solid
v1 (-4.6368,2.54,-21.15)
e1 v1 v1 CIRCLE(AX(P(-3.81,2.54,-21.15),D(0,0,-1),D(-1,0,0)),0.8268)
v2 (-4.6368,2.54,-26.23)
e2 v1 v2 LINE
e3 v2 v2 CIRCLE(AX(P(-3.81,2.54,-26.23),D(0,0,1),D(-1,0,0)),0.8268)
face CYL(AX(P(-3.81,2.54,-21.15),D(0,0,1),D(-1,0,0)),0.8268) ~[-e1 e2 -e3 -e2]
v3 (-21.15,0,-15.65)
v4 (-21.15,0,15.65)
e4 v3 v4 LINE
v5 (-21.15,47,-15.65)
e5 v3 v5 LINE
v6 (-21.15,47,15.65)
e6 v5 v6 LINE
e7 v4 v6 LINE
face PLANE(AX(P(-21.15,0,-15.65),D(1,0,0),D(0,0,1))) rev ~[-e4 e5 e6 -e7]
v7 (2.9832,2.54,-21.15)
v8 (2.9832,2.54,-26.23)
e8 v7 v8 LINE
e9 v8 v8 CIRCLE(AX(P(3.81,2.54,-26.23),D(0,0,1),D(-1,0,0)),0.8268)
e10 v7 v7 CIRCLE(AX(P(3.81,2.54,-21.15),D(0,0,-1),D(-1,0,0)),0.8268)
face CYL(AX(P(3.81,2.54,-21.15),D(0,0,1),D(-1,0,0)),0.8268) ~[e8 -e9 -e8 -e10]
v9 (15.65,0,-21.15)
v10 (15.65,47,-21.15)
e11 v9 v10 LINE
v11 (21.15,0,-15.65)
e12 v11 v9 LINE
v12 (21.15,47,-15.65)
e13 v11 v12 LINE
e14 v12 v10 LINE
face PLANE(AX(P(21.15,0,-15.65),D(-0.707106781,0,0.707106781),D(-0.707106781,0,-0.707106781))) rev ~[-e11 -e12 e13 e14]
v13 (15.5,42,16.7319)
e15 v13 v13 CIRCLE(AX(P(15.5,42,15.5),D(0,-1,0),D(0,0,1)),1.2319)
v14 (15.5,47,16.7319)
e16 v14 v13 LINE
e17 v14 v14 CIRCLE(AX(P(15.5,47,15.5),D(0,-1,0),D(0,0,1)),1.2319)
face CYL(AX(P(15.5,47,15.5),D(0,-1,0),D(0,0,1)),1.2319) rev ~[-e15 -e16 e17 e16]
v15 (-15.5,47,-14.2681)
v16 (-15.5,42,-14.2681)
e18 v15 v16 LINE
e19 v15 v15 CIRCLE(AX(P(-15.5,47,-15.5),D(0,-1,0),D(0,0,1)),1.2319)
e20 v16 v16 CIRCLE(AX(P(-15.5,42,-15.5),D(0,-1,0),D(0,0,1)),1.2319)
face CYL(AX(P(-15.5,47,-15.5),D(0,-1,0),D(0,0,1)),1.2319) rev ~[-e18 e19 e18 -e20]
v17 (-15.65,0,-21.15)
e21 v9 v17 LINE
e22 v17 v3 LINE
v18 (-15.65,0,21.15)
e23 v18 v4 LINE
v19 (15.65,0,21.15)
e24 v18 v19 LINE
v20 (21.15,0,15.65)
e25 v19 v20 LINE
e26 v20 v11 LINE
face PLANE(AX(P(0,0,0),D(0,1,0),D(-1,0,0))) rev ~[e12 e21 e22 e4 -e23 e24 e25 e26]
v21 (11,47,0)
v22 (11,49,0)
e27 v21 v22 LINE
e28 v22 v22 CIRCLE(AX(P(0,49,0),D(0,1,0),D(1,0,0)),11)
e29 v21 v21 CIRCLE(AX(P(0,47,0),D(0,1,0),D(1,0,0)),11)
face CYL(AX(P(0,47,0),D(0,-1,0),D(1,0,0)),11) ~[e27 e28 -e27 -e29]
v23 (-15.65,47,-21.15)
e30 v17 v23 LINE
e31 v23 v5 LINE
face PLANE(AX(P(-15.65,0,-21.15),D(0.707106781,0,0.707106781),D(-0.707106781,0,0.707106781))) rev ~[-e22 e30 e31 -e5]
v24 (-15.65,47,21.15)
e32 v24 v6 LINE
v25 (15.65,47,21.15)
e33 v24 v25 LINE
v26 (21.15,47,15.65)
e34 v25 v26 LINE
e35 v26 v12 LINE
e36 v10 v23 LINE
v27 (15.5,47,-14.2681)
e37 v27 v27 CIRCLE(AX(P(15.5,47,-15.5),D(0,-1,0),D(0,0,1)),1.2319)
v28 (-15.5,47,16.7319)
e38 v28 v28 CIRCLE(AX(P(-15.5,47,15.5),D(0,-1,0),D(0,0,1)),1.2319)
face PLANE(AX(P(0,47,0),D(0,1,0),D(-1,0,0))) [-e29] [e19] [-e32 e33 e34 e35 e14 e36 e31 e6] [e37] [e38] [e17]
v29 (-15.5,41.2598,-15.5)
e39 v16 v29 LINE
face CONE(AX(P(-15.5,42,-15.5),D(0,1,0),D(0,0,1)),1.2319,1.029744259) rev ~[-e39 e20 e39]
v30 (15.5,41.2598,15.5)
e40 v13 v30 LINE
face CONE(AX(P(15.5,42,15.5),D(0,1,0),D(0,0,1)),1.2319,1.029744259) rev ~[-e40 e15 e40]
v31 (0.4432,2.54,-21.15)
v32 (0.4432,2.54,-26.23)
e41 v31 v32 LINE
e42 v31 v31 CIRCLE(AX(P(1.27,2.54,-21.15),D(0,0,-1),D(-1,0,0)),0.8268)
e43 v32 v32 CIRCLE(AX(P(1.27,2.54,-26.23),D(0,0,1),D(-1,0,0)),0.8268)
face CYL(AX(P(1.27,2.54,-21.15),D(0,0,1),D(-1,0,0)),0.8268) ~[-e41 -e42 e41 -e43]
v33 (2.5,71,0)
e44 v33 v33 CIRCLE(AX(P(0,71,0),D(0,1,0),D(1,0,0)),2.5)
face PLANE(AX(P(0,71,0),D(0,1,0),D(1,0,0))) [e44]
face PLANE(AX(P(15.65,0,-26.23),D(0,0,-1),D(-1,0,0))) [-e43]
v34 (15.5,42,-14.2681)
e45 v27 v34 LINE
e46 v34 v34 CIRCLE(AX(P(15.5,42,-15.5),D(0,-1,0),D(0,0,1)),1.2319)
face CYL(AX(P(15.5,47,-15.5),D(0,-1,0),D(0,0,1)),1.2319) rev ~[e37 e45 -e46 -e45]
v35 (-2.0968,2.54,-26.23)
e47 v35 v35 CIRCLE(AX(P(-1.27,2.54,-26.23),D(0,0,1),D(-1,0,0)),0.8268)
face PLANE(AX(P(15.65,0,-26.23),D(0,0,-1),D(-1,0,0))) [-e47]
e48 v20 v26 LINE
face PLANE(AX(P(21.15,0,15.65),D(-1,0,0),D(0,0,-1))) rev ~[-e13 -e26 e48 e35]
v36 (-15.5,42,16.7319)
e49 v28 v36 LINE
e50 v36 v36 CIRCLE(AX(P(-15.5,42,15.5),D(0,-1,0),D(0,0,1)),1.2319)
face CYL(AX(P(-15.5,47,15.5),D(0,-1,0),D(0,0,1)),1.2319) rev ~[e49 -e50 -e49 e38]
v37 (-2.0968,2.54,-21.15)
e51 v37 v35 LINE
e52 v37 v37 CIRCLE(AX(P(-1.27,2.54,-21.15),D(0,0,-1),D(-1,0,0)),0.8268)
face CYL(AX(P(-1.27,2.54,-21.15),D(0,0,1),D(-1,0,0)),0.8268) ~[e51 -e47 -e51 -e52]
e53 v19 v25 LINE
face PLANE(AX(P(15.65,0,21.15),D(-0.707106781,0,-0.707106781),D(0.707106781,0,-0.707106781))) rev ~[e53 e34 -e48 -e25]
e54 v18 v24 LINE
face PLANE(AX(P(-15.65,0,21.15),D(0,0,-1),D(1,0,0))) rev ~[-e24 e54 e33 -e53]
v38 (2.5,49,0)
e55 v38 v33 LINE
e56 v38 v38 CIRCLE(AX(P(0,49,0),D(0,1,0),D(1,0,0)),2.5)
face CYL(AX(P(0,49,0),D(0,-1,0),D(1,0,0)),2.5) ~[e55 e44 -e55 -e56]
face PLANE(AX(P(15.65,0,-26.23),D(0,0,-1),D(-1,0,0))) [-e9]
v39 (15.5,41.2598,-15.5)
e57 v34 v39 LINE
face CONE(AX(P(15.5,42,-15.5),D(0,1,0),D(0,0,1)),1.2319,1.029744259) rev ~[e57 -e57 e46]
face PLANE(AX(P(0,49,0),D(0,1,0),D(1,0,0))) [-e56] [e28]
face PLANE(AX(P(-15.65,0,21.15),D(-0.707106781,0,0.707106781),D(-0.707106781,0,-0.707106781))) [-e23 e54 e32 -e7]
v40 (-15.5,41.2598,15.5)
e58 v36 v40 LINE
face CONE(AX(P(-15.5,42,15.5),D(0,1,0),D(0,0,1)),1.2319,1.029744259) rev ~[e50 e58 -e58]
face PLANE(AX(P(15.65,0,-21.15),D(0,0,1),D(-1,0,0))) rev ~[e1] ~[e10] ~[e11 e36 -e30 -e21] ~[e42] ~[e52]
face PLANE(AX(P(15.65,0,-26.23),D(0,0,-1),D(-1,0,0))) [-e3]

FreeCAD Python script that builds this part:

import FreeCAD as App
import Part
import Sketcher
from FreeCAD import Vector
Q = App.Units.Quantity


def add_polygon(sketch, points):
    """Adds a closed chain of lines whose ends are joined by coincident constraints."""
    first, n = sketch.GeometryCount, len(points)
    for a, b in zip(points, points[1:] + points[:1]):
        sketch.addGeometry(Part.LineSegment(App.Vector(*a, 0), App.Vector(*b, 0)), False)
    for i in range(n):
        sketch.addConstraint(Sketcher.Constraint("Coincident", first + i, 2, first + (i + 1) % n, 1))

doc = App.newDocument("Part")
body = doc.addObject("PartDesign::Body", "Body")

# Sketch on XZ plane
sketch1 = body.newObject("Sketcher::SketchObject", "Sketch")
sketch1.AttachmentSupport = (doc.getObject("XZ_Plane"), [""])
sketch1.MapMode = "FlatFace"
add_polygon(sketch1, [(21, -16), (16, -21), (-16, -21), (-21, -16), (-21, 16), (-16, 21), (16, 21), (21, 16)])  # lines 0-7
sketch1.addConstraint([
    Sketcher.Constraint("Horizontal", 1),
    Sketcher.Constraint("Vertical", 3),
    Sketcher.Constraint("Horizontal", 5),
    Sketcher.Constraint("Vertical", 7),
    Sketcher.Constraint("Symmetric", 0, 2, 4, 2, -1, 1),
    Sketcher.Constraint("Symmetric", 2, 2, 6, 2, -1, 1),
    Sketcher.Constraint("Perpendicular", 0, 2),
    Sketcher.Constraint("Perpendicular", 2, 4),
    Sketcher.Constraint("Perpendicular", 4, 6),
    Sketcher.Constraint("Horizontal", 3, 2, 6, 2),
    Sketcher.Constraint("Vertical", 1, 2, 4, 2),
    Sketcher.Constraint("Equal", 5, 3),
    Sketcher.Constraint("DistanceX", 2, 2, 1, 2, Q("5.5 mm")),
    Sketcher.Constraint("DistanceY", 1, 2, 4, 2, Q("42.3 mm")),
])
pad1 = body.newObject("PartDesign::Pad", "Pad")
pad1.Profile = sketch1
pad1.Length = 47
pad1.Reversed = True

# Sketch on XZ plane
sketch2 = body.newObject("Sketcher::SketchObject", "Sketch001")
sketch2.AttachmentSupport = (doc.getObject("XZ_Plane"), [""])
sketch2.MapMode = "FlatFace"
sketch2.AttachmentOffset = App.Placement(Vector(0, 0, -47), App.Rotation())
sketch2.addGeometry(Part.Circle(Vector(0, 0, 0), Vector(0, 0, 1), 11), False)
sketch2.addConstraint([
    Sketcher.Constraint("Coincident", 0, 3, -1, 1),
    Sketcher.Constraint("Diameter", 0, Q("22 mm")),
])
pad2 = body.newObject("PartDesign::Pad", "Pad001")
pad2.Profile = sketch2
pad2.Length = 2
pad2.Reversed = True

# Sketch on XZ plane
sketch3 = body.newObject("Sketcher::SketchObject", "Sketch002")
sketch3.AttachmentSupport = (doc.getObject("XZ_Plane"), [""])
sketch3.MapMode = "FlatFace"
sketch3.AttachmentOffset = App.Placement(Vector(0, 0, -49), App.Rotation())
sketch3.addGeometry(Part.Circle(Vector(0, 0, 0), Vector(0, 0, 1), 2.5), False)
sketch3.addConstraint([
    Sketcher.Constraint("Coincident", 0, 3, -1, 1),
    Sketcher.Constraint("Diameter", 0, Q("5 mm")),
])
pad3 = body.newObject("PartDesign::Pad", "Pad002")
pad3.Profile = sketch3
pad3.Length = 22
pad3.Reversed = True

# Sketch on XZ plane
sketch4 = body.newObject("Sketcher::SketchObject", "Sketch003")
sketch4.AttachmentSupport = (doc.getObject("XZ_Plane"), [""])
sketch4.MapMode = "FlatFace"
sketch4.AttachmentOffset = App.Placement(Vector(0, 0, -47), App.Rotation())
sketch4.addGeometry([
    Part.Circle(Vector(15.5, -15.5, 0), Vector(0, 0, 1), 1.2),
    Part.Circle(Vector(15.5, 15.5, 0), Vector(0, 0, 1), 1.2),
    Part.Circle(Vector(-15.5, -15.5, 0), Vector(0, 0, 1), 1.2),
    Part.Circle(Vector(-15.5, 15.5, 0), Vector(0, 0, 1), 1.2),
], False)
sketch4.addConstraint([
    Sketcher.Constraint("Equal", 0, 1),
    Sketcher.Constraint("Equal", 1, 2),
    Sketcher.Constraint("Equal", 2, 3),
    Sketcher.Constraint("Symmetric", 1, 3, 2, 3, -1, 1),
    Sketcher.Constraint("Symmetric", 0, 3, 3, 3, -1, 1),
    Sketcher.Constraint("Symmetric", 0, 3, 2, 3, -2),
    Sketcher.Constraint("DistanceY", 0, 3, 1, 3, Q("31 mm")),
    Sketcher.Constraint("DistanceX", 2, 3, 0, 3, Q("31 mm")),
    Sketcher.Constraint("Diameter", 0, Q("2.4638 mm")),
])
doc.recompute()
hole = body.newObject("PartDesign::Hole", "Hole")
hole.Profile = sketch4
hole.ThreadType = "None"
hole.Diameter = 2.4638
hole.DepthType = "Dimension"
hole.Depth = 5
hole.DrillPoint = "Angled"
hole.DrillPointAngle = 118
hole.Reversed = True

# Sketch on XY plane
sketch5 = body.newObject("Sketcher::SketchObject", "Sketch004")
sketch5.AttachmentSupport = (doc.getObject("XY_Plane"), [""])
sketch5.MapMode = "FlatFace"
sketch5.AttachmentOffset = App.Placement(Vector(0, 0, -21.15), App.Rotation())
sketch5.addGeometry([
    Part.Circle(Vector(3.8, 2.5, 0), Vector(0, 0, 1), 0.8),
    Part.Circle(Vector(-3.8, 2.5, 0), Vector(0, 0, 1), 0.8),
    Part.Circle(Vector(-1.3, 2.5, 0), Vector(0, 0, 1), 0.8),
    Part.Circle(Vector(1.3, 2.5, 0), Vector(0, 0, 1), 0.8),
], False)
sketch5.addConstraint([
    Sketcher.Constraint("Equal", 0, 1),
    Sketcher.Constraint("Equal", 1, 2),
    Sketcher.Constraint("Equal", 2, 3),
    Sketcher.Constraint("Symmetric", 0, 3, 1, 3, -2),
    Sketcher.Constraint("Symmetric", 2, 3, 3, 3, -2),
    Sketcher.Constraint("Horizontal", 1, 3, 2, 3),
    Sketcher.Constraint("Diameter", 0, Q("1.6536 mm")),
    Sketcher.Constraint("DistanceY", -1, 1, 0, 3, Q("2.54 mm")),
    Sketcher.Constraint("DistanceX", 1, 3, 2, 3, Q("2.54 mm")),
    Sketcher.Constraint("DistanceX", 2, 3, 3, 3, Q("2.54 mm")),
])
pad4 = body.newObject("PartDesign::Pad", "Pad003")
pad4.Profile = sketch5
pad4.Length = 5.08
pad4.Reversed = True

doc.recompute()
